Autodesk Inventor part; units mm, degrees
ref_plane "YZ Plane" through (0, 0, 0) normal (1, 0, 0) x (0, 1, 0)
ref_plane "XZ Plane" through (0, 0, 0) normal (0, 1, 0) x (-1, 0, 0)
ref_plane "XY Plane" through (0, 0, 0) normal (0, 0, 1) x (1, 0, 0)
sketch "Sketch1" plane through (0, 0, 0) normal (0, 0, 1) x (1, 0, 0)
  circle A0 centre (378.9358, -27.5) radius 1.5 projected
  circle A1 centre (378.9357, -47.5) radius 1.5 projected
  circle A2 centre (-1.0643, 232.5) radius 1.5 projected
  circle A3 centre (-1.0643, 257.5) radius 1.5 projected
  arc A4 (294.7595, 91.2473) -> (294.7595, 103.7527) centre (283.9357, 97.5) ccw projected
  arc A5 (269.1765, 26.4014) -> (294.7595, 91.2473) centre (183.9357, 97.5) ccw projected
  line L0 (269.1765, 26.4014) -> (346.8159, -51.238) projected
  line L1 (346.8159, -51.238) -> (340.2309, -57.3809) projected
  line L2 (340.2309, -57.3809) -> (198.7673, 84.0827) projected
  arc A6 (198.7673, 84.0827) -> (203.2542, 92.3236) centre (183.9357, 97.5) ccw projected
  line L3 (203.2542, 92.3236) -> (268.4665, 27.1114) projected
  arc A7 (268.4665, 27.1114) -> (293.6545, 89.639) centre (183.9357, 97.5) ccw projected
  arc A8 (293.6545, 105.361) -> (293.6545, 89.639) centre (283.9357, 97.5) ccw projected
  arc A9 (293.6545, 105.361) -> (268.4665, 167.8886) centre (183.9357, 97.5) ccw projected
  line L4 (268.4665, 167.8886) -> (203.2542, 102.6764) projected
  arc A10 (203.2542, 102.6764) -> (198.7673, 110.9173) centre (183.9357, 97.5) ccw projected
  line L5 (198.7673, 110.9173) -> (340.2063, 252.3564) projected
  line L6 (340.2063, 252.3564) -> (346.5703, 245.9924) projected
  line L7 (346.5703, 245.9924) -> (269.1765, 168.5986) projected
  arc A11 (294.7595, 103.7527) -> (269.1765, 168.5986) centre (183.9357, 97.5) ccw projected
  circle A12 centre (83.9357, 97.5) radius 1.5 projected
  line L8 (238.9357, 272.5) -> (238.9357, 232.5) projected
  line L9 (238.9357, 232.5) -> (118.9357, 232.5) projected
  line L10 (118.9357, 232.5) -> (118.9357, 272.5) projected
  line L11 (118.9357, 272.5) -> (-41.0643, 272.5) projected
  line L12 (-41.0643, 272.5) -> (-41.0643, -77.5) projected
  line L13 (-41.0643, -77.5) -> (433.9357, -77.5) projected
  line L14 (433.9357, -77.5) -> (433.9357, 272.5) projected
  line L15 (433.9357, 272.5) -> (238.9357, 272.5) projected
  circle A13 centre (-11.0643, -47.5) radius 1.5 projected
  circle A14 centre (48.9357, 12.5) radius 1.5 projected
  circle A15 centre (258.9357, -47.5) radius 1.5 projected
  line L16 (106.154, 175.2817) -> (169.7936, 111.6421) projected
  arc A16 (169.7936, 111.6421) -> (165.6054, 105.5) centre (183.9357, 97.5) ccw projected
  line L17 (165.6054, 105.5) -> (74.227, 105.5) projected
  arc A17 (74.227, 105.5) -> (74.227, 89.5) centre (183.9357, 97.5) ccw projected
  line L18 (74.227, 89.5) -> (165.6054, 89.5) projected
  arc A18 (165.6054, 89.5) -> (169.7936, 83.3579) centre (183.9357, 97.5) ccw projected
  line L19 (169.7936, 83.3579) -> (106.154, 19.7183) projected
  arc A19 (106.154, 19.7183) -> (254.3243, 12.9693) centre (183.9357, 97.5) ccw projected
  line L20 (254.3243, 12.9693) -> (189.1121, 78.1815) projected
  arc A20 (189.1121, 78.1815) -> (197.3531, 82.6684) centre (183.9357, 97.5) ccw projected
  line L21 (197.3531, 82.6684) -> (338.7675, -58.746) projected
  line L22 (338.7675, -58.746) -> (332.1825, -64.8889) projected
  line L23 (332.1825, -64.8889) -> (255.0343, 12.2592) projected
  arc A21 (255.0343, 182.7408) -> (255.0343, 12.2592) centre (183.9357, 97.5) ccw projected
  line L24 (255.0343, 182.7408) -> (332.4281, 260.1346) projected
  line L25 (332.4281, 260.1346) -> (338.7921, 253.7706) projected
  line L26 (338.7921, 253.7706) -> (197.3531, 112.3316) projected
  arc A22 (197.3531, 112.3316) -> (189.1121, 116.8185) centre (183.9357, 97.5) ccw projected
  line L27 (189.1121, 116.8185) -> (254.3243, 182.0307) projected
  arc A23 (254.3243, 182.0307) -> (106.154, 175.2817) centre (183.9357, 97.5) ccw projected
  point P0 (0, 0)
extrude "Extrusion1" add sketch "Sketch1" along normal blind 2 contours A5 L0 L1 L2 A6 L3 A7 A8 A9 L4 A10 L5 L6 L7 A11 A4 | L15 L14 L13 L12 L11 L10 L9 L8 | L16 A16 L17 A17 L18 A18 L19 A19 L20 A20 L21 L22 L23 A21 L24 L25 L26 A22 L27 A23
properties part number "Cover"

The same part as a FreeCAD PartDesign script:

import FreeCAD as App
import Part
import Sketcher

V = App.Vector
Q = App.Units.Quantity


def add_polygon(sketch, points):
    """Adds a closed chain of lines whose ends are joined by coincident constraints."""
    first, n = sketch.GeometryCount, len(points)
    for a, b in zip(points, points[1:] + points[:1]):
        sketch.addGeometry(Part.LineSegment(App.Vector(*a, 0), App.Vector(*b, 0)), False)
    for i in range(n):
        sketch.addConstraint(Sketcher.Constraint("Coincident", first + i, 2, first + (i + 1) % n, 1))

doc = App.newDocument("Part")
body = doc.addObject("PartDesign::Body", "Body")

# Sketch on XY plane
sketch1 = body.newObject("Sketcher::SketchObject", "Sketch")
sketch1.AttachmentSupport = (doc.getObject("XY_Plane"), [""])
sketch1.MapMode = "FlatFace"
add_polygon(sketch1, [(433.9, 272.5), (238.9, 272.5), (238.9, 232.5), (118.9, 232.5), (118.9, 272.5), (-41.1, 272.5), (-41.1, -77.5), (433.9, -77.5)])  # lines 0-7
sketch1.addGeometry(Part.Circle(V(-11.1, -47.5, 0), V(0, 0, 1), 1.5), False)  # 8
sketch1.addGeometry(Part.Circle(V(48.9, 12.5, 0), V(0, 0, 1), 1.5), False)  # 9
sketch1.addGeometry(Part.Circle(V(258.9, -47.5, 0), V(0, 0, 1), 1.5), False)  # 10
sketch1.addGeometry(Part.Circle(V(378.9, -47.5, 0), V(0, 0, 1), 1.5), False)  # 11
sketch1.addGeometry(Part.Circle(V(378.9, -27.5, 0), V(0, 0, 1), 1.5), False)  # 12
sketch1.addGeometry(Part.Circle(V(83.9, 97.5, 0), V(0, 0, 1), 1.5), False)  # 13
sketch1.addGeometry(Part.Circle(V(-1.1, 232.5, 0), V(0, 0, 1), 1.5), False)  # 14
sketch1.addGeometry(Part.Circle(V(-1.1, 257.5, 0), V(0, 0, 1), 1.5), False)  # 15
sketch1.addConstraint(Sketcher.Constraint("Horizontal", 0))
sketch1.addConstraint(Sketcher.Constraint("Vertical", 1))
sketch1.addConstraint(Sketcher.Constraint("Horizontal", 2))
sketch1.addConstraint(Sketcher.Constraint("Vertical", 3))
sketch1.addConstraint(Sketcher.Constraint("Horizontal", 4))
sketch1.addConstraint(Sketcher.Constraint("Vertical", 5))
sketch1.addConstraint(Sketcher.Constraint("Horizontal", 6))
sketch1.addConstraint(Sketcher.Constraint("Vertical", 7))
sketch1.addConstraint(Sketcher.Constraint("Equal", 8, 9))
sketch1.addConstraint(Sketcher.Constraint("Equal", 9, 10))
sketch1.addConstraint(Sketcher.Constraint("Equal", 10, 11))
sketch1.addConstraint(Sketcher.Constraint("Equal", 11, 12))
sketch1.addConstraint(Sketcher.Constraint("Equal", 12, 13))
sketch1.addConstraint(Sketcher.Constraint("Equal", 13, 14))
sketch1.addConstraint(Sketcher.Constraint("Equal", 14, 15))
sketch1.addConstraint(Sketcher.Constraint("Horizontal", 8, 3, 10, 3))
sketch1.addConstraint(Sketcher.Constraint("Horizontal", 10, 3, 11, 3))
sketch1.addConstraint(Sketcher.Constraint("Horizontal", 14, 3, 1, 2))
sketch1.addConstraint(Sketcher.Constraint("Horizontal", 0, 2, 3, 2))
sketch1.addConstraint(Sketcher.Constraint("Vertical", 11, 3, 12, 3))
sketch1.addConstraint(Sketcher.Constraint("Vertical", 14, 3, 15, 3))
sketch1.addConstraint(Sketcher.Constraint("Diameter", 8, Q("3 mm")))
sketch1.addConstraint(Sketcher.Constraint("DistanceX", 0, 2, 0, 1, Q("195 mm")))
sketch1.addConstraint(Sketcher.Constraint("DistanceX", 2, 2, 2, 1, Q("120 mm")))
sketch1.addConstraint(Sketcher.Constraint("DistanceX", 4, 2, 4, 1, Q("160 mm")))
sketch1.addConstraint(Sketcher.Constraint("DistanceY", 1, 2, 1, 1, Q("40 mm")))
sketch1.addConstraint(Sketcher.Constraint("DistanceY", 5, 2, 5, 1, Q("350 mm")))
sketch1.addConstraint(Sketcher.Constraint("DistanceX", 8, 3, 9, 3, Q("60 mm")))
sketch1.addConstraint(Sketcher.Constraint("DistanceY", 8, 3, 9, 3, Q("60 mm")))
sketch1.addConstraint(Sketcher.Constraint("DistanceX", 9, 3, 10, 3, Q("210 mm")))
sketch1.addConstraint(Sketcher.Constraint("DistanceX", 10, 3, 11, 3, Q("120 mm")))
sketch1.addConstraint(Sketcher.Constraint("DistanceY", 11, 3, 12, 3, Q("20 mm")))
sketch1.addConstraint(Sketcher.Constraint("DistanceX", 9, 3, 13, 3, Q("35 mm")))
sketch1.addConstraint(Sketcher.Constraint("DistanceY", 9, 3, 13, 3, Q("85 mm")))
sketch1.addConstraint(Sketcher.Constraint("DistanceX", 14, 3, 13, 3, Q("85 mm")))
sketch1.addConstraint(Sketcher.Constraint("DistanceY", 13, 3, 14, 3, Q("135 mm")))
sketch1.addConstraint(Sketcher.Constraint("DistanceY", 14, 3, 15, 3, Q("25 mm")))
sketch1.addConstraint(Sketcher.Constraint("DistanceX", 13, 3, 0, 2, Q("155 mm")))
sketch1.addConstraint(Sketcher.Constraint("DistanceY", 8, 3, -1, 1, Q("47.5 mm")))
sketch1.addConstraint(Sketcher.Constraint("DistanceX", 8, 3, -1, 1, Q("11.0643 mm")))
pad1 = body.newObject("PartDesign::Pad", "Pad")
pad1.Profile = sketch1
pad1.Length = 2

doc.recompute()
